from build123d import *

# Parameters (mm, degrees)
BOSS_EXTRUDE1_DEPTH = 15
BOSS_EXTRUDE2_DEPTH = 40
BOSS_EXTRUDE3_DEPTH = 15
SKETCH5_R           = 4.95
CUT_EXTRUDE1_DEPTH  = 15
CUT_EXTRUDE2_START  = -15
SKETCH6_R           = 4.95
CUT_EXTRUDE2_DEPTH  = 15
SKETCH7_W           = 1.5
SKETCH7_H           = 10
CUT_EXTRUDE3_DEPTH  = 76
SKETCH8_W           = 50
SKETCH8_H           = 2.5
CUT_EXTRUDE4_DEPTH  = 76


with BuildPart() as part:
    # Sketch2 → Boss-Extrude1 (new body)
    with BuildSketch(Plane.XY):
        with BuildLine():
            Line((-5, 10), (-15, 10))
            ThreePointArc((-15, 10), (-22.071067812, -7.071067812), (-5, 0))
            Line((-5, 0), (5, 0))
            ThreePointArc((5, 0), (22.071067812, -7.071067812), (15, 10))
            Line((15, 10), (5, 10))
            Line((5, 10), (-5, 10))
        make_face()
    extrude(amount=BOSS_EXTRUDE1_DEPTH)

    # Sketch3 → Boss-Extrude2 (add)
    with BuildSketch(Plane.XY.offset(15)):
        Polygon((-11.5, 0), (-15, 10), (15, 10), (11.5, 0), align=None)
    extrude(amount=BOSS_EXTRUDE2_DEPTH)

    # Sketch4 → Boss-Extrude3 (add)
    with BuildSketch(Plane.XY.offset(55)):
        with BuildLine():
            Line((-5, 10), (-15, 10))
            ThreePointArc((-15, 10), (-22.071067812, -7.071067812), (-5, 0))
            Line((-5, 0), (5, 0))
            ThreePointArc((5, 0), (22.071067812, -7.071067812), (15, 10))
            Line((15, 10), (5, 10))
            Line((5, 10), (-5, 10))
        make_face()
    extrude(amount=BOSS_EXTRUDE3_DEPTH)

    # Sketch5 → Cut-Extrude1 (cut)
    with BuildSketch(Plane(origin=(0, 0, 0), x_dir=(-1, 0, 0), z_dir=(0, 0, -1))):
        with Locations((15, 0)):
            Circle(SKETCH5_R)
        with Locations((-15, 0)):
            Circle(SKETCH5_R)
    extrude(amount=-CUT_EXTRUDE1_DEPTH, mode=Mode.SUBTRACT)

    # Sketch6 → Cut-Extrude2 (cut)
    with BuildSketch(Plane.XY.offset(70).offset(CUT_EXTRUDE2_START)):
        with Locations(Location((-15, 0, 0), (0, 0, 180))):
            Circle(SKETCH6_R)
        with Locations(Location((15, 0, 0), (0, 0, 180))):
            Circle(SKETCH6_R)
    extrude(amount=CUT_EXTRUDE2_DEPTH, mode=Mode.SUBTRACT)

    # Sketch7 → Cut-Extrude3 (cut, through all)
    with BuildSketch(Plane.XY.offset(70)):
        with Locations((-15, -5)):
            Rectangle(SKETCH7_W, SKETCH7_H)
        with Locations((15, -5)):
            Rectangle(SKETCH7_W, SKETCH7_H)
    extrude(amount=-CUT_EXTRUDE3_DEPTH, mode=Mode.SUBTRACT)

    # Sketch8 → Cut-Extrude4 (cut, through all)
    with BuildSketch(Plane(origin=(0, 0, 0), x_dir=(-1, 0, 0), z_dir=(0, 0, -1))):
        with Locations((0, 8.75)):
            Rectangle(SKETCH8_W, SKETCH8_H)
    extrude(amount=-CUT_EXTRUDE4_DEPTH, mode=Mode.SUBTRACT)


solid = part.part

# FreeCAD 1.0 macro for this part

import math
import FreeCAD as App
import Part
import Sketcher

doc = App.newDocument("Part")
params = doc.addObject("Spreadsheet::Sheet", "Params")
for row, (alias, value) in enumerate([
    ("sketch1_radius", "10 mm"),
    ("sketch1_width", "10 mm"),
    ("pad1_length", "15 mm"),
    ("sketch2_width", "23 mm"),
    ("sketch2_width2", "30 mm"),
    ("pad2_length", "40 mm"),
    ("sketch3_radius", "10 mm"),
    ("sketch3_width", "10 mm"),
    ("pad3_length", "15 mm"),
    ("sketch4_diameter", "9.9 mm"),
    ("pocket1_length", "15 mm"),
    ("sketch5_diameter", "9.9 mm"),
    ("pocket2_length", "15 mm"),
    ("sketch6_height", "10 mm"),
    ("sketch6_width", "1.5 mm"),
    ("sketch7_width", "50 mm"),
    ("sketch7_height", "2.5 mm"),
], start=1):
    params.set(f"A{row}", alias)
    params.set(f"B{row}", "=" + value)
    params.setAlias(f"B{row}", alias)

body = doc.addObject("PartDesign::Body", "Body")

sketch1 = doc.addObject("Sketcher::SketchObject", "Sketch")
body.addObject(sketch1)
sketch1.AttachmentSupport = (doc.XY_Plane, [""])
sketch1.MapMode = "FlatFace"
sketch1.addGeometry([
    Part.ArcOfCircle(Part.Circle(App.Vector(-15, 0, 0), App.Vector(0, 0, 1), 10), math.radians(90), math.radians(360)),
    Part.LineSegment(App.Vector(-5, 0, 0), App.Vector(5, 0, 0)),
    Part.ArcOfCircle(Part.Circle(App.Vector(15, 0, 0), App.Vector(0, 0, 1), 10), math.radians(180), math.radians(450)),
    Part.LineSegment(App.Vector(15, 10, 0), App.Vector(-15, 10, 0)),
], False)
sketch1.addConstraint([
    Sketcher.Constraint("Coincident", 0, 2, 1, 1),
    Sketcher.Constraint("Coincident", 1, 2, 2, 1),
    Sketcher.Constraint("Tangent", 2, 2, 3, 1),
    Sketcher.Constraint("Tangent", 3, 2, 0, 1),
    Sketcher.Constraint("Horizontal", 1),
    Sketcher.Constraint("Horizontal", 3),
    Sketcher.Constraint("Equal", 0, 2),
    Sketcher.Constraint("Symmetric", 0, 3, 2, 3, -1, 1),
    Sketcher.Constraint("PointOnObject", 0, 2, -1),
    Sketcher.Constraint("Radius", 0, 10.0),
    Sketcher.Constraint("DistanceX", 1, 1, 1, 2, 10.0),
])
sketch1.setExpression("Constraints[9]", "Params.sketch1_radius")
sketch1.setExpression("Constraints[10]", "Params.sketch1_width")
pad1 = doc.addObject("PartDesign::Pad", "Pad")
body.addObject(pad1)
pad1.Profile = sketch1
pad1.setExpression("Length", "Params.pad1_length")

sketch2 = doc.addObject("Sketcher::SketchObject", "Sketch001")
body.addObject(sketch2)
sketch2.AttachmentSupport = (doc.XY_Plane, [""])
sketch2.MapMode = "FlatFace"
sketch2.AttachmentOffset = App.Placement(App.Vector(0, 0, 15), App.Rotation())
sketch2.addGeometry([
    Part.LineSegment(App.Vector(-15, 10, 0), App.Vector(-11.5, 0, 0)),
    Part.LineSegment(App.Vector(-11.5, 0, 0), App.Vector(11.5, 0, 0)),
    Part.LineSegment(App.Vector(11.5, 0, 0), App.Vector(15, 10, 0)),
    Part.LineSegment(App.Vector(15, 10, 0), App.Vector(-15, 10, 0)),
], False)
sketch2.addConstraint([
    Sketcher.Constraint("Coincident", 0, 2, 1, 1),
    Sketcher.Constraint("Coincident", 1, 2, 2, 1),
    Sketcher.Constraint("Coincident", 2, 2, 3, 1),
    Sketcher.Constraint("Coincident", 3, 2, 0, 1),
    Sketcher.Constraint("Horizontal", 1),
    Sketcher.Constraint("Horizontal", 3),
    Sketcher.Constraint("Symmetric", 0, 2, 1, 2, -1, 1),
    Sketcher.Constraint("Equal", 0, 2),
    Sketcher.Constraint("DistanceX", 1, 1, 1, 2, 23.0),
    Sketcher.Constraint("DistanceX", 3, 2, 3, 1, 30.0),
    Sketcher.Constraint("DistanceY", -1, 1, 2, 2, 10.0),
])
sketch2.setExpression("Constraints[8]", "Params.sketch2_width")
sketch2.setExpression("Constraints[9]", "Params.sketch2_width2")
pad2 = doc.addObject("PartDesign::Pad", "Pad001")
body.addObject(pad2)
pad2.Profile = sketch2
pad2.setExpression("Length", "Params.pad2_length")

sketch3 = doc.addObject("Sketcher::SketchObject", "Sketch002")
body.addObject(sketch3)
sketch3.AttachmentSupport = (doc.XY_Plane, [""])
sketch3.MapMode = "FlatFace"
sketch3.AttachmentOffset = App.Placement(App.Vector(0, 0, 55), App.Rotation())
sketch3.addGeometry([
    Part.ArcOfCircle(Part.Circle(App.Vector(-15, 0, 0), App.Vector(0, 0, 1), 10), math.radians(90), math.radians(360)),
    Part.LineSegment(App.Vector(-5, 0, 0), App.Vector(5, 0, 0)),
    Part.ArcOfCircle(Part.Circle(App.Vector(15, 0, 0), App.Vector(0, 0, 1), 10), math.radians(180), math.radians(450)),
    Part.LineSegment(App.Vector(15, 10, 0), App.Vector(-15, 10, 0)),
], False)
sketch3.addConstraint([
    Sketcher.Constraint("Coincident", 0, 2, 1, 1),
    Sketcher.Constraint("Coincident", 1, 2, 2, 1),
    Sketcher.Constraint("Tangent", 2, 2, 3, 1),
    Sketcher.Constraint("Tangent", 3, 2, 0, 1),
    Sketcher.Constraint("Horizontal", 1),
    Sketcher.Constraint("Horizontal", 3),
    Sketcher.Constraint("Equal", 0, 2),
    Sketcher.Constraint("Symmetric", 0, 3, 2, 3, -1, 1),
    Sketcher.Constraint("PointOnObject", 0, 2, -1),
    Sketcher.Constraint("Radius", 0, 10.0),
    Sketcher.Constraint("DistanceX", 1, 1, 1, 2, 10.0),
])
sketch3.setExpression("Constraints[9]", "Params.sketch3_radius")
sketch3.setExpression("Constraints[10]", "Params.sketch3_width")
pad3 = doc.addObject("PartDesign::Pad", "Pad002")
body.addObject(pad3)
pad3.Profile = sketch3
pad3.setExpression("Length", "Params.pad3_length")

sketch4 = doc.addObject("Sketcher::SketchObject", "Sketch003")
body.addObject(sketch4)
sketch4.AttachmentSupport = (doc.XY_Plane, [""])
sketch4.MapMode = "FlatFace"
sketch4.addGeometry([
    Part.Circle(App.Vector(-15, 0, 0), App.Vector(0, 0, 1), 4.95),
    Part.Circle(App.Vector(15, 0, 0), App.Vector(0, 0, 1), 4.95),
], False)
sketch4.addConstraint([
    Sketcher.Constraint("Equal", 0, 1),
    Sketcher.Constraint("Symmetric", 0, 3, 1, 3, -1, 1),
    Sketcher.Constraint("PointOnObject", 0, 3, -1),
    Sketcher.Constraint("Diameter", 0, 9.9),
    Sketcher.Constraint("DistanceX", 0, 3, -1, 1, 15.0),
])
sketch4.setExpression("Constraints[3]", "Params.sketch4_diameter")
pocket1 = doc.addObject("PartDesign::Pocket", "Pocket")
body.addObject(pocket1)
pocket1.Profile = sketch4
pocket1.setExpression("Length", "Params.pocket1_length")
pocket1.Reversed = True

sketch5 = doc.addObject("Sketcher::SketchObject", "Sketch004")
body.addObject(sketch5)
sketch5.AttachmentSupport = (doc.XY_Plane, [""])
sketch5.MapMode = "FlatFace"
sketch5.AttachmentOffset = App.Placement(App.Vector(0, 0, 55), App.Rotation())
sketch5.addGeometry([
    Part.Circle(App.Vector(-15, 0, 0), App.Vector(0, 0, 1), 4.95),
    Part.Circle(App.Vector(15, 0, 0), App.Vector(0, 0, 1), 4.95),
], False)
sketch5.addConstraint([
    Sketcher.Constraint("Equal", 0, 1),
    Sketcher.Constraint("Symmetric", 0, 3, 1, 3, -1, 1),
    Sketcher.Constraint("PointOnObject", 0, 3, -1),
    Sketcher.Constraint("Diameter", 0, 9.9),
    Sketcher.Constraint("DistanceX", 0, 3, -1, 1, 15.0),
])
sketch5.setExpression("Constraints[3]", "Params.sketch5_diameter")
pocket2 = doc.addObject("PartDesign::Pocket", "Pocket001")
body.addObject(pocket2)
pocket2.Profile = sketch5
pocket2.setExpression("Length", "Params.pocket2_length")
pocket2.Reversed = True

sketch6 = doc.addObject("Sketcher::SketchObject", "Sketch005")
body.addObject(sketch6)
sketch6.AttachmentSupport = (doc.XY_Plane, [""])
sketch6.MapMode = "FlatFace"
sketch6.AttachmentOffset = App.Placement(App.Vector(0, 0, 70), App.Rotation())
sketch6.addGeometry([
    Part.LineSegment(App.Vector(-15.75, 0, 0), App.Vector(-15.75, -10, 0)),
    Part.LineSegment(App.Vector(-15.75, -10, 0), App.Vector(-14.25, -10, 0)),
    Part.LineSegment(App.Vector(-14.25, -10, 0), App.Vector(-14.25, 0, 0)),
    Part.LineSegment(App.Vector(-14.25, 0, 0), App.Vector(-15.75, 0, 0)),
    Part.LineSegment(App.Vector(14.25, 0, 0), App.Vector(14.25, -10, 0)),
    Part.LineSegment(App.Vector(14.25, -10, 0), App.Vector(15.75, -10, 0)),
    Part.LineSegment(App.Vector(15.75, -10, 0), App.Vector(15.75, 0, 0)),
    Part.LineSegment(App.Vector(15.75, 0, 0), App.Vector(14.25, 0, 0)),
], False)
sketch6.addConstraint([
    Sketcher.Constraint("Coincident", 0, 2, 1, 1),
    Sketcher.Constraint("Coincident", 1, 2, 2, 1),
    Sketcher.Constraint("Coincident", 2, 2, 3, 1),
    Sketcher.Constraint("Coincident", 3, 2, 0, 1),
    Sketcher.Constraint("Coincident", 4, 2, 5, 1),
    Sketcher.Constraint("Coincident", 5, 2, 6, 1),
    Sketcher.Constraint("Coincident", 6, 2, 7, 1),
    Sketcher.Constraint("Coincident", 7, 2, 4, 1),
    Sketcher.Constraint("Vertical", 0),
    Sketcher.Constraint("Horizontal", 1),
    Sketcher.Constraint("Vertical", 2),
    Sketcher.Constraint("Horizontal", 3),
    Sketcher.Constraint("Vertical", 4),
    Sketcher.Constraint("Horizontal", 5),
    Sketcher.Constraint("Vertical", 6),
    Sketcher.Constraint("Horizontal", 7),
    Sketcher.Constraint("Symmetric", 3, 2, 6, 2, -1, 1),
    Sketcher.Constraint("Symmetric", 1, 2, 4, 2, -2),
    Sketcher.Constraint("PointOnObject", 2, 2, -1),
    Sketcher.Constraint("DistanceY", 0, 2, 0, 1, 10.0),
    Sketcher.Constraint("DistanceX", 1, 1, 1, 2, 1.5),
    Sketcher.Constraint("DistanceX", 0, 2, 4, 2, 30.0),
])
sketch6.setExpression("Constraints[19]", "Params.sketch6_height")
sketch6.setExpression("Constraints[20]", "Params.sketch6_width")
pocket3 = doc.addObject("PartDesign::Pocket", "Pocket002")
body.addObject(pocket3)
pocket3.Profile = sketch6
pocket3.Type = "ThroughAll"

sketch7 = doc.addObject("Sketcher::SketchObject", "Sketch006")
body.addObject(sketch7)
sketch7.AttachmentSupport = (doc.XY_Plane, [""])
sketch7.MapMode = "FlatFace"
sketch7.addGeometry([
    Part.LineSegment(App.Vector(25, 10, 0), App.Vector(25, 7.5, 0)),
    Part.LineSegment(App.Vector(25, 7.5, 0), App.Vector(-25, 7.5, 0)),
    Part.LineSegment(App.Vector(-25, 7.5, 0), App.Vector(-25, 10, 0)),
    Part.LineSegment(App.Vector(-25, 10, 0), App.Vector(25, 10, 0)),
], False)
sketch7.addConstraint([
    Sketcher.Constraint("Coincident", 0, 2, 1, 1),
    Sketcher.Constraint("Coincident", 1, 2, 2, 1),
    Sketcher.Constraint("Coincident", 2, 2, 3, 1),
    Sketcher.Constraint("Coincident", 3, 2, 0, 1),
    Sketcher.Constraint("Vertical", 0),
    Sketcher.Constraint("Horizontal", 1),
    Sketcher.Constraint("Vertical", 2),
    Sketcher.Constraint("Horizontal", 3),
    Sketcher.Constraint("DistanceX", 1, 2, 1, 1, 50.0),
    Sketcher.Constraint("DistanceY", 0, 2, 0, 1, 2.5),
    Sketcher.Constraint("DistanceX", -1, 1, 0, 2, 25.0),
    Sketcher.Constraint("DistanceY", -1, 1, 2, 2, 10.0),
])
sketch7.setExpression("Constraints[8]", "Params.sketch7_width")
sketch7.setExpression("Constraints[9]", "Params.sketch7_height")
pocket4 = doc.addObject("PartDesign::Pocket", "Pocket003")
body.addObject(pocket4)
pocket4.Profile = sketch7
pocket4.Type = "ThroughAll"
pocket4.Reversed = True

doc.recompute()
